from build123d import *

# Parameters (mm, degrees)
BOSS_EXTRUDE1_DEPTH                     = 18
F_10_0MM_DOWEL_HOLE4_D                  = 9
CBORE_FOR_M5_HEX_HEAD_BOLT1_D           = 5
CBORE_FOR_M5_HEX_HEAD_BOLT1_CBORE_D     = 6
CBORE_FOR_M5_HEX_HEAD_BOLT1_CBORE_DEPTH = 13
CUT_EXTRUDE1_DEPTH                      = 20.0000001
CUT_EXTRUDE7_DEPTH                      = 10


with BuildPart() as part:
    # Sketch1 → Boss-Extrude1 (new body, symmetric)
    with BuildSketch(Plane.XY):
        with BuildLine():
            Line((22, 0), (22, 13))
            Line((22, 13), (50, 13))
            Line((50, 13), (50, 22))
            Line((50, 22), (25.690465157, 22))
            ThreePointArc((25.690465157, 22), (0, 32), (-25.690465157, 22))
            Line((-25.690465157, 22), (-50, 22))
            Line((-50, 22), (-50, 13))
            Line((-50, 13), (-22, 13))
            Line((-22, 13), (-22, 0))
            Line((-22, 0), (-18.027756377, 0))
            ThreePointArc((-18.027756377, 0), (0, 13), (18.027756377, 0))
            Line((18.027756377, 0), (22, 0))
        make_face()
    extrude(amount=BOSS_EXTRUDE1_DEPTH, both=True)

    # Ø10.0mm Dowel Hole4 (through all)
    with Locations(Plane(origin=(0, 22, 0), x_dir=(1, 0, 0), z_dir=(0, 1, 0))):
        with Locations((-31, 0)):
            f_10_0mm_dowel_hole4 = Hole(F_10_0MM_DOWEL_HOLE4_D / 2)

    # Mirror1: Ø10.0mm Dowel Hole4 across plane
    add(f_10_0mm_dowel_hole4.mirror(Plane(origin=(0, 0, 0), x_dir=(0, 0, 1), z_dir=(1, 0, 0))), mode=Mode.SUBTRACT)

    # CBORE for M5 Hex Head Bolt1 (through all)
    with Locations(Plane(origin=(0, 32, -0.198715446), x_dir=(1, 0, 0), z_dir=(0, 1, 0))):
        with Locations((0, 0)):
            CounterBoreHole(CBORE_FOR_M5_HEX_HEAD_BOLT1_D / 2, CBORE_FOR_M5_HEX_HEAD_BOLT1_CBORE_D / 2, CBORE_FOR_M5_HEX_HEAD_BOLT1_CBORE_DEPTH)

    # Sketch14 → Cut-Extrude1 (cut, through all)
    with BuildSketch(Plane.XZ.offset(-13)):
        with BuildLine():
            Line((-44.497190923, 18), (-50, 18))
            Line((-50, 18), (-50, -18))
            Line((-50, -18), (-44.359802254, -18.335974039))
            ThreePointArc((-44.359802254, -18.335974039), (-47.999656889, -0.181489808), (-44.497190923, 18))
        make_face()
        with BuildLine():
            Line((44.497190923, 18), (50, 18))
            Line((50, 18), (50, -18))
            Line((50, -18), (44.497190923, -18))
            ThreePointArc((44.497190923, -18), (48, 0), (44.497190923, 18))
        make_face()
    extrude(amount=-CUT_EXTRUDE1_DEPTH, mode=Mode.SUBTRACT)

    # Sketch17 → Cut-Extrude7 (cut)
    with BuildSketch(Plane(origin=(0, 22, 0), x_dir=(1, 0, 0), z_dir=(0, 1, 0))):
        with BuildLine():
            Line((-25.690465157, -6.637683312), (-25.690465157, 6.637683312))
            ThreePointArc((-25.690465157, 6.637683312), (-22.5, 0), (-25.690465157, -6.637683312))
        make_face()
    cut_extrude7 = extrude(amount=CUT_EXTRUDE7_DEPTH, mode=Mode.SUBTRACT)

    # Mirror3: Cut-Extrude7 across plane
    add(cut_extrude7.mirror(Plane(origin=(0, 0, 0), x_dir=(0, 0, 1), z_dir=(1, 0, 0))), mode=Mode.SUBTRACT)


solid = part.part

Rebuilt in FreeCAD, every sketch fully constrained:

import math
import FreeCAD as App
import Part
import Sketcher

V = App.Vector
Q = App.Units.Quantity

doc = App.newDocument("Part")
body = doc.addObject("PartDesign::Body", "Body")

# Sketch on XY plane
sketch1 = body.newObject("Sketcher::SketchObject", "Sketch")
sketch1.AttachmentSupport = (doc.getObject("XY_Plane"), [""])
sketch1.MapMode = "FlatFace"
sketch1.addGeometry([
    Part.LineSegment(V(22, 0, 0), V(22, 13, 0)),  # 0
    Part.LineSegment(V(22, 13, 0), V(50, 13, 0)),  # 1
    Part.LineSegment(V(50, 13, 0), V(50, 22, 0)),  # 2
    Part.LineSegment(V(50, 22, 0), V(25.690465, 22, 0)),  # 3
    Part.ArcOfCircle(Part.Circle(V(0, -6, 0), V(0, 0, 1), 38), math.radians(47.463102), math.radians(132.536898)),  # 4
    Part.LineSegment(V(-25.690465, 22, 0), V(-50, 22, 0)),  # 5
    Part.LineSegment(V(-50, 22, 0), V(-50, 13, 0)),  # 6
    Part.LineSegment(V(-50, 13, 0), V(-22, 13, 0)),  # 7
    Part.LineSegment(V(-22, 13, 0), V(-22, 0, 0)),  # 8
    Part.LineSegment(V(-22, 0, 0), V(-18.027756, 0, 0)),  # 9
    Part.ArcOfCircle(Part.Circle(V(0, -6, 0), V(0, 0, 1), 19), math.radians(18.40848), math.radians(161.59152)),  # 10
    Part.LineSegment(V(18.027756, 0, 0), V(22, 0, 0)),  # 11
], False)
sketch1.addConstraint([
    Sketcher.Constraint("Coincident", 0, 2, 1, 1),
    Sketcher.Constraint("Coincident", 1, 2, 2, 1),
    Sketcher.Constraint("Coincident", 2, 2, 3, 1),
    Sketcher.Constraint("Coincident", 3, 2, 4, 1),
    Sketcher.Constraint("Coincident", 4, 2, 5, 1),
    Sketcher.Constraint("Coincident", 5, 2, 6, 1),
    Sketcher.Constraint("Coincident", 6, 2, 7, 1),
    Sketcher.Constraint("Coincident", 7, 2, 8, 1),
    Sketcher.Constraint("Coincident", 8, 2, 9, 1),
    Sketcher.Constraint("Coincident", 9, 2, 10, 2),
    Sketcher.Constraint("Coincident", 10, 1, 11, 1),
    Sketcher.Constraint("Coincident", 11, 2, 0, 1),
    Sketcher.Constraint("Vertical", 0),
    Sketcher.Constraint("Horizontal", 1),
    Sketcher.Constraint("Vertical", 2),
    Sketcher.Constraint("Horizontal", 3),
    Sketcher.Constraint("Horizontal", 5),
    Sketcher.Constraint("Vertical", 6),
    Sketcher.Constraint("Horizontal", 7),
    Sketcher.Constraint("Vertical", 8),
    Sketcher.Constraint("Horizontal", 9),
    Sketcher.Constraint("Horizontal", 11),
    Sketcher.Constraint("Coincident", 10, 3, 4, 3),
    Sketcher.Constraint("Symmetric", 9, 2, 10, 1, -1, 1),
    Sketcher.Constraint("Symmetric", 3, 2, 4, 2, -2),
    Sketcher.Constraint("Symmetric", 1, 2, 6, 2, -2),
    Sketcher.Constraint("Equal", 1, 7),
    Sketcher.Constraint("Radius", 4, Q("38 mm")),
    Sketcher.Constraint("Radius", 10, Q("19 mm")),
    Sketcher.Constraint("DistanceX", 1, 1, 1, 2, Q("28 mm")),
    Sketcher.Constraint("DistanceY", 0, 1, 0, 2, Q("13 mm")),
    Sketcher.Constraint("DistanceY", 2, 1, 2, 2, Q("9 mm")),
    Sketcher.Constraint("DistanceY", 4, 3, -1, 1, Q("6 mm")),
    Sketcher.Constraint("DistanceX", -1, 1, 0, 2, Q("22 mm")),
])
pad1 = body.newObject("PartDesign::Pad", "Pad")
pad1.Profile = sketch1
pad1.Length = 36
pad1.Midplane = True

# Sketch on XZ plane
sketch2 = body.newObject("Sketcher::SketchObject", "Sketch001")
sketch2.AttachmentSupport = (doc.getObject("XZ_Plane"), [""])
sketch2.MapMode = "FlatFace"
sketch2.AttachmentOffset = App.Placement(V(0, 0, -22), App.Rotation())
sketch2.addGeometry(Part.Circle(V(-31, 0, 0), V(0, 0, 1), 4.5), False)
sketch2.addConstraint([
    Sketcher.Constraint("PointOnObject", 0, 3, -1),
    Sketcher.Constraint("Diameter", 0, Q("9 mm")),
    Sketcher.Constraint("DistanceX", 0, 3, -1, 1, Q("31 mm")),
])
doc.recompute()
hole = body.newObject("PartDesign::Hole", "Hole")
hole.Profile = sketch2
hole.ThreadType = "None"
hole.Diameter = 9
hole.DepthType = "ThroughAll"
hole.Reversed = True
doc.recompute()

mirrored = body.newObject("PartDesign::Mirrored", "Mirrored")
mirrored.Originals = [hole]
mirrored.MirrorPlane = (doc.getObject("YZ_Plane"), [""])
body.Tip = mirrored

# Sketch on XZ plane
sketch3 = body.newObject("Sketcher::SketchObject", "Sketch002")
sketch3.AttachmentSupport = (doc.getObject("XZ_Plane"), [""])
sketch3.MapMode = "FlatFace"
sketch3.AttachmentOffset = App.Placement(V(0, 0, -32), App.Rotation())
sketch3.addGeometry(Part.Circle(V(0, -0.198715, 0), V(0, 0, 1), 2.5), False)
sketch3.addConstraint([
    Sketcher.Constraint("PointOnObject", 0, 3, -2),
    Sketcher.Constraint("Diameter", 0, Q("5 mm")),
    Sketcher.Constraint("DistanceY", 0, 3, -1, 1, Q("0.198715 mm")),
])
doc.recompute()
hole2 = body.newObject("PartDesign::Hole", "Hole001")
hole2.Profile = sketch3
hole2.ThreadType = "None"
hole2.Diameter = 5
hole2.DepthType = "ThroughAll"
hole2.HoleCutType = "Counterbore"
hole2.HoleCutDiameter = 6
hole2.HoleCutDepth = 13
hole2.Reversed = True

# Sketch on XZ plane
sketch4 = body.newObject("Sketcher::SketchObject", "Sketch003")
sketch4.AttachmentSupport = (doc.getObject("XZ_Plane"), [""])
sketch4.MapMode = "FlatFace"
sketch4.AttachmentOffset = App.Placement(V(0, 0, -13), App.Rotation())
sketch4.addGeometry([
    Part.LineSegment(V(-44.497191, 18, 0), V(-50, 18, 0)),  # 0
    Part.LineSegment(V(-50, 18, 0), V(-50, -18, 0)),  # 1
    Part.LineSegment(V(-50, -18, 0), V(-44.359802, -18.335974, 0)),  # 2
    Part.ArcOfCircle(Part.Circle(V(0, 0, 0), V(0, 0, 1), 48), math.radians(157.975687), math.radians(202.457589)),  # 3
    Part.LineSegment(V(50, 18, 0), V(44.497191, 18, 0)),  # 4
    Part.ArcOfCircle(Part.Circle(V(0, 0, 0), V(0, 0, 1), 48), math.radians(-22.024313), math.radians(22.024313)),  # 5
    Part.LineSegment(V(44.497191, -18, 0), V(50, -18, 0)),  # 6
    Part.LineSegment(V(50, -18, 0), V(50, 18, 0)),  # 7
], False)
sketch4.addConstraint([
    Sketcher.Constraint("Coincident", 0, 2, 1, 1),
    Sketcher.Constraint("Coincident", 1, 2, 2, 1),
    Sketcher.Constraint("Coincident", 2, 2, 3, 2),
    Sketcher.Constraint("Coincident", 3, 1, 0, 1),
    Sketcher.Constraint("Coincident", 4, 2, 5, 2),
    Sketcher.Constraint("Coincident", 5, 1, 6, 1),
    Sketcher.Constraint("Coincident", 6, 2, 7, 1),
    Sketcher.Constraint("Coincident", 7, 2, 4, 1),
    Sketcher.Constraint("Horizontal", 0),
    Sketcher.Constraint("Vertical", 1),
    Sketcher.Constraint("Horizontal", 4),
    Sketcher.Constraint("Horizontal", 6),
    Sketcher.Constraint("Vertical", 7),
    Sketcher.Constraint("Coincident", 3, 3, -1, 1),
    Sketcher.Constraint("Coincident", 5, 3, -1, 1),
    Sketcher.Constraint("Equal", 3, 5),
    Sketcher.Constraint("Symmetric", 0, 2, 6, 2, -1, 1),
    Sketcher.Constraint("Horizontal", 3, 1, 4, 2),
    Sketcher.Constraint("Horizontal", 1, 2, 5, 1),
    Sketcher.Constraint("Radius", 3, Q("48 mm")),
    Sketcher.Constraint("DistanceY", 1, 2, 1, 1, Q("36 mm")),
    Sketcher.Constraint("DistanceX", 0, 2, -1, 1, Q("50 mm")),
    Sketcher.Constraint("DistanceX", 3, 1, 2, 2, Q("0.137389 mm")),
])
pocket1 = body.newObject("PartDesign::Pocket", "Pocket")
pocket1.Profile = sketch4
pocket1.Type = "ThroughAll"

# Sketch on XZ plane
sketch5 = body.newObject("Sketcher::SketchObject", "Sketch004")
sketch5.AttachmentSupport = (doc.getObject("XZ_Plane"), [""])
sketch5.MapMode = "FlatFace"
sketch5.AttachmentOffset = App.Placement(V(0, 0, -22), App.Rotation())
sketch5.addGeometry([
    Part.LineSegment(V(-25.690465, -6.637683, 0), V(-25.690465, 6.637683, 0)),
    Part.ArcOfCircle(Part.Circle(V(-31, 0, 0), V(0, 0, 1), 8.5), math.radians(-51.343412), math.radians(51.343412)),
], False)
sketch5.addConstraint([
    Sketcher.Constraint("Coincident", 0, 1, 1, 1),
    Sketcher.Constraint("Coincident", 1, 2, 0, 2),
    Sketcher.Constraint("Vertical", 0),
    Sketcher.Constraint("PointOnObject", 1, 3, -1),
    Sketcher.Constraint("Radius", 1, Q("8.5 mm")),
    Sketcher.Constraint("DistanceX", 1, 3, -1, 1, Q("31 mm")),
    Sketcher.Constraint("DistanceY", 0, 1, 0, 2, Q("13.275367 mm")),
])
pocket2 = body.newObject("PartDesign::Pocket", "Pocket001")
pocket2.Profile = sketch5
pocket2.Length = 10
doc.recompute()

mirrored2 = body.newObject("PartDesign::Mirrored", "Mirrored001")
mirrored2.Originals = [pocket2]
mirrored2.MirrorPlane = (doc.getObject("YZ_Plane"), [""])
body.Tip = mirrored2

doc.recompute()
